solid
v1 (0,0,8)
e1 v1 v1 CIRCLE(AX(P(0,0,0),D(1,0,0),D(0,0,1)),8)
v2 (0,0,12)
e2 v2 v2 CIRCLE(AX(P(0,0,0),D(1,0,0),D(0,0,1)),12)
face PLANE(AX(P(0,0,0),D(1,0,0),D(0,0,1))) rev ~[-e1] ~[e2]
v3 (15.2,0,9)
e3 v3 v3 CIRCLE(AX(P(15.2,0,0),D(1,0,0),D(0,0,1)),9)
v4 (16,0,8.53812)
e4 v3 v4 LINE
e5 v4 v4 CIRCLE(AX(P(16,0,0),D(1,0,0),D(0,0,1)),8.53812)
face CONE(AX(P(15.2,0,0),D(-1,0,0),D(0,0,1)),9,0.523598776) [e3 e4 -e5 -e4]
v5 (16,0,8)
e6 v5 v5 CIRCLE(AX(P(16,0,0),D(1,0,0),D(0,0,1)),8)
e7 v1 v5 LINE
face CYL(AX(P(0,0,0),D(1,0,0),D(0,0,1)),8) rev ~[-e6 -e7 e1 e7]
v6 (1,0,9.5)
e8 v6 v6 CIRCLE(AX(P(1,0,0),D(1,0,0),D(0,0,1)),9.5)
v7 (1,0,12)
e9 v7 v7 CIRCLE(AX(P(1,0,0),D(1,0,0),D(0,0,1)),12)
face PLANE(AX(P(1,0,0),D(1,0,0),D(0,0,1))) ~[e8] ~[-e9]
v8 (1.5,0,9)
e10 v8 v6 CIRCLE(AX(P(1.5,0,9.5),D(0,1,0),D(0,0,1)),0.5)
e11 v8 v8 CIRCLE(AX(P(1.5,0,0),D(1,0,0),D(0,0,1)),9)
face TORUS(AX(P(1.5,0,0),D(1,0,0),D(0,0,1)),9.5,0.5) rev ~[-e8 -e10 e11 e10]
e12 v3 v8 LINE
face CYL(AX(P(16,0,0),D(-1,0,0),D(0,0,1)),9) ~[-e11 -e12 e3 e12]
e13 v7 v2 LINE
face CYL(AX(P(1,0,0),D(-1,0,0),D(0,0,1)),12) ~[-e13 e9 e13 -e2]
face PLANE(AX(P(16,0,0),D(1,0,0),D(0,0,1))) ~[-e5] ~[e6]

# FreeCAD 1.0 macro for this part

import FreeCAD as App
import Part
import Sketcher
from FreeCAD import Vector
Q = App.Units.Quantity


def edges_at(feature, points):
    """Names of the edges that pass closest to the given points."""
    edges = feature.Shape.Edges
    near = lambda p: min(range(len(edges)), key=lambda i: edges[i].distToShape(Part.Vertex(*p))[0])
    return sorted({f"Edge{near(p) + 1}" for p in points})


def add_polygon(sketch, points):
    """Adds a closed chain of lines whose ends are joined by coincident constraints."""
    first, n = sketch.GeometryCount, len(points)
    for a, b in zip(points, points[1:] + points[:1]):
        sketch.addGeometry(Part.LineSegment(App.Vector(*a, 0), App.Vector(*b, 0)), False)
    for i in range(n):
        sketch.addConstraint(Sketcher.Constraint("Coincident", first + i, 2, first + (i + 1) % n, 1))

doc = App.newDocument("Part")
params = doc.addObject("Spreadsheet::Sheet", "Params")
for row, (alias, value) in enumerate([
    ("sketch1_width", "16 mm"),
    ("sketch1_width2", "15 mm"),
    ("sketch1_height", "4 mm"),
    ("revolution_angle", "360 deg"),
    ("chamfer_size", "0.8 mm"),
    ("chamfer_size2", "0.46188 mm"),
    ("fillet_radius", "0.5 mm"),
], start=1):
    params.set(f"A{row}", alias)
    params.set(f"B{row}", "=" + value)
    params.setAlias(f"B{row}", alias)

body = doc.addObject("PartDesign::Body", "Body")

# Sketch on XZ plane
sketch1 = body.newObject("Sketcher::SketchObject", "Sketch")
sketch1.AttachmentSupport = (doc.getObject("XZ_Plane"), [""])
sketch1.MapMode = "FlatFace"
add_polygon(sketch1, [(0, 12), (0, 8), (16, 8), (16, 9), (1, 9), (1, 12)])  # lines 0-5
sketch1.addConstraint([
    Sketcher.Constraint("Vertical", 0),
    Sketcher.Constraint("Horizontal", 1),
    Sketcher.Constraint("Vertical", 2),
    Sketcher.Constraint("Horizontal", 3),
    Sketcher.Constraint("Vertical", 4),
    Sketcher.Constraint("Horizontal", 5),
    Sketcher.Constraint("PointOnObject", 0, 2, -2),
    Sketcher.Constraint("Equal", 5, 2),
    Sketcher.Constraint("DistanceX", 1, 1, 1, 2, Q("16 mm")),
    Sketcher.Constraint("DistanceX", 3, 2, 3, 1, Q("15 mm")),
    Sketcher.Constraint("DistanceY", 0, 2, 0, 1, Q("4 mm")),
    Sketcher.Constraint("DistanceY", -1, 1, 0, 2, Q("8 mm")),
])
sketch1.setExpression("Constraints[14]", "Params.sketch1_width")
sketch1.setExpression("Constraints[15]", "Params.sketch1_width2")
sketch1.setExpression("Constraints[16]", "Params.sketch1_height")
revolution = body.newObject("PartDesign::Revolution", "Revolution")
revolution.Profile = sketch1
revolution.ReferenceAxis = (sketch1, ["H_Axis"])
revolution.setExpression("Angle", "Params.revolution_angle")
doc.recompute()

chamfer = body.newObject("PartDesign::Chamfer", "Chamfer")
chamfer.Base = (revolution, edges_at(revolution, [(16, 0, -9)]))
chamfer.ChamferType = "Two distances"
chamfer.setExpression("Size", "Params.chamfer_size")
chamfer.setExpression("Size2", "Params.chamfer_size2")
chamfer.FlipDirection = True
doc.recompute()

fillet = body.newObject("PartDesign::Fillet", "Fillet")
fillet.Base = (chamfer, edges_at(chamfer, [(1, 0, -9)]))
fillet.setExpression("Radius", "Params.fillet_radius")

doc.recompute()
